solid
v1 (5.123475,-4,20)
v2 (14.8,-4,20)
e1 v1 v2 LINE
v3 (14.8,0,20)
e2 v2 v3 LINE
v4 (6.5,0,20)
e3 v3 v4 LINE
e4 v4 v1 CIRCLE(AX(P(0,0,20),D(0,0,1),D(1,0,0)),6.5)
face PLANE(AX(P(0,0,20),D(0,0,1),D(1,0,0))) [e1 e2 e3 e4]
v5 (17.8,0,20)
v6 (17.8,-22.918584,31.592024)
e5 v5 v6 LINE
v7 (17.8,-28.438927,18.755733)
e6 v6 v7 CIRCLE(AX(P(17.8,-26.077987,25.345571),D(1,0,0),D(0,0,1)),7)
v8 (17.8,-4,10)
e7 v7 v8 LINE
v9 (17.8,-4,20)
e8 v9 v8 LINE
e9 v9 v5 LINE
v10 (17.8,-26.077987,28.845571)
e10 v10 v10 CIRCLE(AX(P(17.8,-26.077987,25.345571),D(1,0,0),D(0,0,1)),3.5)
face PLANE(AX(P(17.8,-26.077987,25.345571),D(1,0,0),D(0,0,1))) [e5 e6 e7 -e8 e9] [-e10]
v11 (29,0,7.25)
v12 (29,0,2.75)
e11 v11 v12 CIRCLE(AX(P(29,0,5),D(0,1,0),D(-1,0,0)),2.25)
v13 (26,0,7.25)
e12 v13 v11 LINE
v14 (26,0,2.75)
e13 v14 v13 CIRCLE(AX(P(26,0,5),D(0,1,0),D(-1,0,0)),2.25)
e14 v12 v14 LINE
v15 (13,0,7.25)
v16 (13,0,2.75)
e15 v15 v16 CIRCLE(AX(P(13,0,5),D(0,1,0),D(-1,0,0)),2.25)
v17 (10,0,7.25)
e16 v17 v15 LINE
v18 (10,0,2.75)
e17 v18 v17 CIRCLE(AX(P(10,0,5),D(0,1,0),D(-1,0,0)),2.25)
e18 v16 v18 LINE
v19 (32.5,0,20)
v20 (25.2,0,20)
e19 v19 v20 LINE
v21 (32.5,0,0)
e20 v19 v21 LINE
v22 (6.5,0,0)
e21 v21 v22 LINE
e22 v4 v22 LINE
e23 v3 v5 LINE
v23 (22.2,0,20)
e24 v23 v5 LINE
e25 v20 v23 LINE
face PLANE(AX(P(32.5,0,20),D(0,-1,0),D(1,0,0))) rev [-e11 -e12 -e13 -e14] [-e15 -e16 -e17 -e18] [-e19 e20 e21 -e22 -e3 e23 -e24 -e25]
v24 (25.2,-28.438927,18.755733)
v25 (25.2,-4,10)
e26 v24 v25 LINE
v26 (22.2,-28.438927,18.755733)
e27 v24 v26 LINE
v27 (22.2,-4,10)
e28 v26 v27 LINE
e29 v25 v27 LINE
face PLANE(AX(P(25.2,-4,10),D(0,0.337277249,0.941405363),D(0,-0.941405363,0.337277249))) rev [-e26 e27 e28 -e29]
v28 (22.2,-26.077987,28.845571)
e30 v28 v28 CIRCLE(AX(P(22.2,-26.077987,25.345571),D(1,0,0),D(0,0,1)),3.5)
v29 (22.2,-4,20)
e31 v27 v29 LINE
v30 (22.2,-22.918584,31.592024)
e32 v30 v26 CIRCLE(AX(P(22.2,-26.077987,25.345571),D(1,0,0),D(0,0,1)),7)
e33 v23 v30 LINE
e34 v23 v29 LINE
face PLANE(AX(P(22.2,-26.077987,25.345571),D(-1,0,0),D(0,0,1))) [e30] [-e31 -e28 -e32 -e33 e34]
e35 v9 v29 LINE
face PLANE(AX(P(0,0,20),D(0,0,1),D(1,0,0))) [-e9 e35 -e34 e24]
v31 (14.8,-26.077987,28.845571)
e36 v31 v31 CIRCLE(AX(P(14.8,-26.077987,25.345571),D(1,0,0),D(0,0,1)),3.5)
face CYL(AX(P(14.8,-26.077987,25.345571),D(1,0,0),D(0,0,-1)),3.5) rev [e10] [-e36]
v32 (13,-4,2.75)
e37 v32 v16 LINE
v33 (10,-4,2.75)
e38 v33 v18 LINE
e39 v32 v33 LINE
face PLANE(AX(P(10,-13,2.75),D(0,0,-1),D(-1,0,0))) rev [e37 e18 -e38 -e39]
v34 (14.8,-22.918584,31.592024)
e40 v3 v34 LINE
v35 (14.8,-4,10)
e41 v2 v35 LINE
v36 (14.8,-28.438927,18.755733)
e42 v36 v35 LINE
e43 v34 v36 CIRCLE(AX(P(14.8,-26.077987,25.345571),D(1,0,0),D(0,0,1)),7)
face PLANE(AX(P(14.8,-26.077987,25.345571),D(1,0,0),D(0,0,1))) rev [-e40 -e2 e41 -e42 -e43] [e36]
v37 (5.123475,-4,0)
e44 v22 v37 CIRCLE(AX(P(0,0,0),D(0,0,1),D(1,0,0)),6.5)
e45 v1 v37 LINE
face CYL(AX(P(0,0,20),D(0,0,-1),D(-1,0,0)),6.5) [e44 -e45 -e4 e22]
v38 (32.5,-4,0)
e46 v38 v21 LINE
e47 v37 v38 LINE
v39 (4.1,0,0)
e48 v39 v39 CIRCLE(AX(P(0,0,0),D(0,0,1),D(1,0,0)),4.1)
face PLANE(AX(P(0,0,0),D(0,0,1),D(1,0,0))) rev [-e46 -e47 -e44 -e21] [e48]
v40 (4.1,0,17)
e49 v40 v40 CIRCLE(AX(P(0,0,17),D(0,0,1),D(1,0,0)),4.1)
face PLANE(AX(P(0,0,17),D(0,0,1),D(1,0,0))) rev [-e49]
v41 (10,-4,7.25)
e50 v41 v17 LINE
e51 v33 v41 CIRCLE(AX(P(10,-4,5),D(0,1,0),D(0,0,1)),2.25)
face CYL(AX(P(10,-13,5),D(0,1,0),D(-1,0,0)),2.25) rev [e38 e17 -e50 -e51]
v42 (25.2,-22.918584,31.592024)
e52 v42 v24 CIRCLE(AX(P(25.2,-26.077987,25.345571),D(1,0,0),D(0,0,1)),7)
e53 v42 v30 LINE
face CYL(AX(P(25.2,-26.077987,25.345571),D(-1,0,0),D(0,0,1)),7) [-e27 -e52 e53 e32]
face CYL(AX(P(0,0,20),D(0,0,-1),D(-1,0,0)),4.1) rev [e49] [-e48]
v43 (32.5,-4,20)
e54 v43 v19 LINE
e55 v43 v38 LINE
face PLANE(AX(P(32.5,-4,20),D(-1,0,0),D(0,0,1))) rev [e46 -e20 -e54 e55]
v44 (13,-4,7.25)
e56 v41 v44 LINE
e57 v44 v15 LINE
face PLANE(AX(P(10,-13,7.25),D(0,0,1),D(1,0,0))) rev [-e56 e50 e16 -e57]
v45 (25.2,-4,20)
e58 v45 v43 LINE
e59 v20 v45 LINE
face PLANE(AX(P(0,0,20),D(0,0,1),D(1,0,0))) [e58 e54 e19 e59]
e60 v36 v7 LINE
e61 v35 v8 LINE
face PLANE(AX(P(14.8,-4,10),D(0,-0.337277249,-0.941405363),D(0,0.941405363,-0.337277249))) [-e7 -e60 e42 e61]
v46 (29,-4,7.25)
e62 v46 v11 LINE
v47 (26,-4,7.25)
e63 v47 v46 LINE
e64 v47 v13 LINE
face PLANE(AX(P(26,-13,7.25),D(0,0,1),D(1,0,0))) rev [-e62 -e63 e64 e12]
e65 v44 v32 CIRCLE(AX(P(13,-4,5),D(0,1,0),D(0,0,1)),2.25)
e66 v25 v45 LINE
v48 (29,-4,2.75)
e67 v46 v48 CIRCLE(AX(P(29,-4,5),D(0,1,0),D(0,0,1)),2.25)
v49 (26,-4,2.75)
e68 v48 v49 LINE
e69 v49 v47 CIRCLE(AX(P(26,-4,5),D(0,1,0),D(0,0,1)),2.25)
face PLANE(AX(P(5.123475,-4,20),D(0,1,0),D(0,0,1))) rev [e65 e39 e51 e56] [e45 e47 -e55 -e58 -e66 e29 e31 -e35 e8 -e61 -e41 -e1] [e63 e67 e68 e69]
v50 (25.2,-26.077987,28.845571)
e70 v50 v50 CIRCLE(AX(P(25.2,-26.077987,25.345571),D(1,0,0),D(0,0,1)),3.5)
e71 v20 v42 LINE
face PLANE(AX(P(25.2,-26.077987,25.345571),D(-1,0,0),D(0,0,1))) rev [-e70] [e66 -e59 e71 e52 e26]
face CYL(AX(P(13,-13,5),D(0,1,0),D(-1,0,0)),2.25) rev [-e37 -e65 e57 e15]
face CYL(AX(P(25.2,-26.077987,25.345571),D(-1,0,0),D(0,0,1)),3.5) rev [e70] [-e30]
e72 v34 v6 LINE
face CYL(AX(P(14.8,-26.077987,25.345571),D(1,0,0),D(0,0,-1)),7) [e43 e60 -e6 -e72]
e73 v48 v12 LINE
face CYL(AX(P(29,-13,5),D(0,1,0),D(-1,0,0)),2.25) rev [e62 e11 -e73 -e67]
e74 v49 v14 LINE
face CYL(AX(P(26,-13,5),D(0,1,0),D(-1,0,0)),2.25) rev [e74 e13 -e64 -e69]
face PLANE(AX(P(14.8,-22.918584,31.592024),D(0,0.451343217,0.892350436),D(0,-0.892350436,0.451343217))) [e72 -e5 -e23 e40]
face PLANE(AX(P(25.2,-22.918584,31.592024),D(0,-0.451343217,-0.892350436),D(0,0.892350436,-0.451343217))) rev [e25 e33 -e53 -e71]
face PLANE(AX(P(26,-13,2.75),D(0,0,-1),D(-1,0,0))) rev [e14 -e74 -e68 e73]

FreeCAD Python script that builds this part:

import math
import FreeCAD as App
import Part
import Sketcher
Q = App.Units.Quantity

doc = App.newDocument("Part")
body = doc.addObject("PartDesign::Body", "Body")

sketch1 = doc.addObject("Sketcher::SketchObject", "Sketch")
body.addObject(sketch1)
sketch1.AttachmentSupport = (doc.XY_Plane, [""])
sketch1.MapMode = "FlatFace"
sketch1.addGeometry([
    Part.LineSegment(App.Vector(5.123475, -4, 0), App.Vector(32.5, -4, 0)),
    Part.LineSegment(App.Vector(32.5, -4, 0), App.Vector(32.5, 0, 0)),
    Part.LineSegment(App.Vector(32.5, 0, 0), App.Vector(6.5, 0, 0)),
    Part.ArcOfCircle(Part.Circle(App.Vector(0, 0, 0), App.Vector(0, 0, 1), 6.5), math.radians(0), math.radians(322.020128)),
    Part.Circle(App.Vector(0, 0, 0), App.Vector(0, 0, 1), 4.1),
], False)
sketch1.addConstraint([
    Sketcher.Constraint("Coincident", 0, 2, 1, 1),
    Sketcher.Constraint("Coincident", 1, 2, 2, 1),
    Sketcher.Constraint("Coincident", 2, 2, 3, 1),
    Sketcher.Constraint("Coincident", 3, 2, 0, 1),
    Sketcher.Constraint("Horizontal", 0),
    Sketcher.Constraint("Vertical", 1),
    Sketcher.Constraint("Horizontal", 2),
    Sketcher.Constraint("Coincident", 3, 3, -1, 1),
    Sketcher.Constraint("Coincident", 4, 3, -1, 1),
    Sketcher.Constraint("PointOnObject", 1, 2, -1),
    Sketcher.Constraint("Diameter", 4, Q("8.2 mm")),
    Sketcher.Constraint("Radius", 3, Q("6.5 mm")),
    Sketcher.Constraint("DistanceX", 2, 2, 2, 1, Q("26 mm")),
    Sketcher.Constraint("DistanceY", 1, 1, 1, 2, Q("4 mm")),
])
pad1 = doc.addObject("PartDesign::Pad", "Pad")
body.addObject(pad1)
pad1.Profile = sketch1
pad1.Length = 20

sketch2 = doc.addObject("Sketcher::SketchObject", "Sketch001")
body.addObject(sketch2)
sketch2.AttachmentSupport = (doc.XY_Plane, [""])
sketch2.MapMode = "FlatFace"
sketch2.AttachmentOffset = App.Placement(App.Vector(0, 0, 20), App.Rotation())
sketch2.addGeometry(Part.Circle(App.Vector(0, 0, 0), App.Vector(0, 0, 1), 4.923201), False)
sketch2.addConstraint([
    Sketcher.Constraint("Coincident", 0, 3, -1, 1),
    Sketcher.Constraint("Diameter", 0, Q("9.846401 mm")),
])
pad2 = doc.addObject("PartDesign::Pad", "Pad001")
body.addObject(pad2)
pad2.Profile = sketch2
pad2.Length = 3
pad2.Reversed = True

sketch3 = doc.addObject("Sketcher::SketchObject", "Sketch002")
body.addObject(sketch3)
sketch3.AttachmentSupport = (doc.XZ_Plane, [""])
sketch3.MapMode = "FlatFace"
sketch3.addGeometry([
    Part.LineSegment(App.Vector(10, 7.25, 0), App.Vector(13, 7.25, 0)),
    Part.ArcOfCircle(Part.Circle(App.Vector(13, 5, 0), App.Vector(0, 0, 1), 2.25), math.radians(-90), math.radians(90)),
    Part.LineSegment(App.Vector(13, 2.75, 0), App.Vector(10, 2.75, 0)),
    Part.ArcOfCircle(Part.Circle(App.Vector(10, 5, 0), App.Vector(0, 0, 1), 2.25), math.radians(90), math.radians(270)),
    Part.LineSegment(App.Vector(29, 2.75, 0), App.Vector(26, 2.75, 0)),
    Part.ArcOfCircle(Part.Circle(App.Vector(26, 5, 0), App.Vector(0, 0, 1), 2.25), math.radians(90), math.radians(270)),
    Part.LineSegment(App.Vector(26, 7.25, 0), App.Vector(29, 7.25, 0)),
    Part.ArcOfCircle(Part.Circle(App.Vector(29, 5, 0), App.Vector(0, 0, 1), 2.25), math.radians(-90), math.radians(90)),
], False)
sketch3.addConstraint([
    Sketcher.Constraint("Tangent", 0, 2, 1, 2),
    Sketcher.Constraint("Tangent", 1, 1, 2, 1),
    Sketcher.Constraint("Tangent", 2, 2, 3, 2),
    Sketcher.Constraint("Tangent", 3, 1, 0, 1),
    Sketcher.Constraint("Tangent", 4, 2, 5, 2),
    Sketcher.Constraint("Tangent", 5, 1, 6, 1),
    Sketcher.Constraint("Tangent", 6, 2, 7, 2),
    Sketcher.Constraint("Tangent", 7, 1, 4, 1),
    Sketcher.Constraint("Horizontal", 0),
    Sketcher.Constraint("Horizontal", 2),
    Sketcher.Constraint("Horizontal", 4),
    Sketcher.Constraint("Horizontal", 6),
    Sketcher.Constraint("Equal", 3, 5),
    Sketcher.Constraint("Horizontal", 3, 3, 5, 3),
    Sketcher.Constraint("Equal", 2, 4),
    Sketcher.Constraint("DistanceX", 0, 1, 0, 2, Q("3 mm")),
    Sketcher.Constraint("Radius", 1, Q("2.25 mm")),
    Sketcher.Constraint("DistanceX", -1, 1, 1, 3, Q("13 mm")),
    Sketcher.Constraint("DistanceY", -1, 1, 1, 3, Q("5 mm")),
    Sketcher.Constraint("DistanceX", -1, 1, 5, 3, Q("26 mm")),
])
pocket1 = doc.addObject("PartDesign::Pocket", "Pocket")
body.addObject(pocket1)
pocket1.Profile = sketch3
pocket1.Length = 13
pocket1.Reversed = True

sketch4 = doc.addObject("Sketcher::SketchObject", "Sketch003")
body.addObject(sketch4)
sketch4.AttachmentSupport = (doc.YZ_Plane, [""])
sketch4.MapMode = "FlatFace"
sketch4.AttachmentOffset = App.Placement(App.Vector(0, 0, 22.2), App.Rotation())
sketch4.addGeometry([
    Part.LineSegment(App.Vector(0, 20, 0), App.Vector(-22.918584, 31.592024, 0)),
    Part.ArcOfCircle(Part.Circle(App.Vector(-26.077987, 25.345571, 0), App.Vector(0, 0, 1), 7), math.radians(63.170104), math.radians(250.288924)),
    Part.LineSegment(App.Vector(-28.438927, 18.755733, 0), App.Vector(-4, 10, 0)),
    Part.LineSegment(App.Vector(-4, 10, 0), App.Vector(0, 20, 0)),
    Part.Circle(App.Vector(-26.077987, 25.345571, 0), App.Vector(0, 0, 1), 3.5),
], False)
sketch4.addConstraint([
    Sketcher.Constraint("Tangent", 0, 2, 1, 1),
    Sketcher.Constraint("Tangent", 1, 2, 2, 1),
    Sketcher.Constraint("Coincident", 2, 2, 3, 1),
    Sketcher.Constraint("Coincident", 3, 2, 0, 1),
    Sketcher.Constraint("Coincident", 4, 3, 1, 3),
    Sketcher.Constraint("PointOnObject", 3, 2, -2),
    Sketcher.Constraint("Diameter", 4, Q("7 mm")),
    Sketcher.Constraint("Radius", 1, Q("7 mm")),
    Sketcher.Constraint("DistanceX", 2, 2, -1, 1, Q("4 mm")),
    Sketcher.Constraint("DistanceY", -1, 1, 2, 2, Q("10 mm")),
    Sketcher.Constraint("DistanceY", -1, 1, 3, 2, Q("20 mm")),
    Sketcher.Constraint("Distance", 0, Q("25.68339 mm")),
    Sketcher.Constraint("DistanceY", -1, 1, 1, 3, Q("25.345571 mm")),
])
pad3 = doc.addObject("PartDesign::Pad", "Pad002")
body.addObject(pad3)
pad3.Profile = sketch4
pad3.Length = 3
doc.recompute()

datumplane = doc.addObject("PartDesign::Plane", "DatumPlane")
body.addObject(datumplane)
datumplane.AttachmentSupport = (doc.YZ_Plane, [""])
datumplane.MapMode = "FlatFace"
datumplane.AttachmentOffset = App.Placement(App.Vector(0, 0, 20), App.Rotation())
mirrored = doc.addObject("PartDesign::Mirrored", "Mirrored")
body.addObject(mirrored)
mirrored.Originals = [pad3]
mirrored.MirrorPlane = (datumplane, [""])
body.Tip = mirrored

doc.recompute()
